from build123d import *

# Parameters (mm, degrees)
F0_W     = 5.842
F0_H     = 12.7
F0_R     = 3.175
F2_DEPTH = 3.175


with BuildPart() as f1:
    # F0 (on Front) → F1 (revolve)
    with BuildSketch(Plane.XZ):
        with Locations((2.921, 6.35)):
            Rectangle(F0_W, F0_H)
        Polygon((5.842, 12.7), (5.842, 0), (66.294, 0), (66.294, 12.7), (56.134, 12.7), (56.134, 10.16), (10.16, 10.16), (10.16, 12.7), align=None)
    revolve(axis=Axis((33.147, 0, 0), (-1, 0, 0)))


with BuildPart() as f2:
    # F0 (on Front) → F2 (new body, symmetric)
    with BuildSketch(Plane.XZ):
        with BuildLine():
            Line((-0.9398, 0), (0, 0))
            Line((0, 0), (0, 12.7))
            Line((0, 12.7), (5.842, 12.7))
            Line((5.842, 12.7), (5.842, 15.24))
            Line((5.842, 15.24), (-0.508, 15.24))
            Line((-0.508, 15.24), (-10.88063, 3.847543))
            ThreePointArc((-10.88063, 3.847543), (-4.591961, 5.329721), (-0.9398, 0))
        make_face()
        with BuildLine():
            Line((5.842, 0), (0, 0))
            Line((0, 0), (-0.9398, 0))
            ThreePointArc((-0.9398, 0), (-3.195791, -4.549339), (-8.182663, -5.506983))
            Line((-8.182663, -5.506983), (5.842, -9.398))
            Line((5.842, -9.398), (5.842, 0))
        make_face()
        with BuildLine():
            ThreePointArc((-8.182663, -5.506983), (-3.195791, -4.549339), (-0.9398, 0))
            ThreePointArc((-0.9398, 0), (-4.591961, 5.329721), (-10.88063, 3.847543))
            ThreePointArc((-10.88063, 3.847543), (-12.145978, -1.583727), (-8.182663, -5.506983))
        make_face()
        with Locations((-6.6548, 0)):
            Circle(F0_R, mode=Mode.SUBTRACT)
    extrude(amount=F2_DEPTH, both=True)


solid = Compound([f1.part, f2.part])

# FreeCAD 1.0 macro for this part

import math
import FreeCAD as App
import Part
import Sketcher

V = App.Vector
Q = App.Units.Quantity

doc = App.newDocument("Part")
body = doc.addObject("PartDesign::Body", "Body")

# Sketch on XZ plane
sketch1 = body.newObject("Sketcher::SketchObject", "Sketch")
sketch1.AttachmentSupport = (doc.getObject("XZ_Plane"), [""])
sketch1.MapMode = "FlatFace"
sketch1.addGeometry([
    Part.LineSegment(V(0, 12.7, 0), V(0, 0, 0)),  # 0
    Part.LineSegment(V(0, 0, 0), V(66.294, 0, 0)),  # 1
    Part.LineSegment(V(66.294, 0, 0), V(66.294, 12.7, 0)),  # 2
    Part.LineSegment(V(66.294, 12.7, 0), V(56.134, 12.7, 0)),  # 3
    Part.LineSegment(V(56.134, 12.7, 0), V(56.134, 10.16, 0)),  # 4
    Part.LineSegment(V(56.134, 10.16, 0), V(10.16, 10.16, 0)),  # 5
    Part.LineSegment(V(10.16, 10.16, 0), V(10.16, 12.7, 0)),  # 6
    Part.LineSegment(V(10.16, 12.7, 0), V(0, 12.7, 0)),  # 7
], False)
sketch1.addConstraint([
    Sketcher.Constraint("Coincident", 0, 2, 1, 1),
    Sketcher.Constraint("Coincident", 1, 2, 2, 1),
    Sketcher.Constraint("Coincident", 2, 2, 3, 1),
    Sketcher.Constraint("Coincident", 3, 2, 4, 1),
    Sketcher.Constraint("Coincident", 4, 2, 5, 1),
    Sketcher.Constraint("Coincident", 5, 2, 6, 1),
    Sketcher.Constraint("Coincident", 6, 2, 7, 1),
    Sketcher.Constraint("Coincident", 7, 2, 0, 1),
    Sketcher.Constraint("Vertical", 0),
    Sketcher.Constraint("Horizontal", 1),
    Sketcher.Constraint("Vertical", 2),
    Sketcher.Constraint("Horizontal", 3),
    Sketcher.Constraint("Vertical", 4),
    Sketcher.Constraint("Horizontal", 5),
    Sketcher.Constraint("Vertical", 6),
    Sketcher.Constraint("Horizontal", 7),
    Sketcher.Constraint("Coincident", 0, 2, -1, 1),
    Sketcher.Constraint("Horizontal", 3, 2, 6, 2),
    Sketcher.Constraint("Equal", 3, 7),
    Sketcher.Constraint("DistanceX", 3, 2, 3, 1, Q("0.4 in")),
    Sketcher.Constraint("DistanceY", 0, 2, 0, 1, Q("0.5 in")),
    Sketcher.Constraint("DistanceY", 4, 2, 4, 1, Q("0.1 in")),
    Sketcher.Constraint("DistanceX", 1, 1, 1, 2, Q("2.61 in")),
])
revolution = body.newObject("PartDesign::Revolution", "Revolution")
revolution.Profile = sketch1
revolution.ReferenceAxis = (sketch1, ["H_Axis"])
revolution.Angle = 360
body2 = doc.addObject("PartDesign::Body", "Body001")

# Sketch on XZ plane
sketch2 = body2.newObject("Sketcher::SketchObject", "Sketch001")
sketch2.AttachmentSupport = (doc.getObject("XZ_Plane001"), [""])
sketch2.MapMode = "FlatFace"
sketch2.addGeometry([
    Part.LineSegment(V(0, 0, 0), V(0, 12.7, 0)),  # 0
    Part.LineSegment(V(0, 12.7, 0), V(5.842, 12.7, 0)),  # 1
    Part.LineSegment(V(5.842, 12.7, 0), V(5.842, 15.24, 0)),  # 2
    Part.LineSegment(V(5.842, 15.24, 0), V(-0.508, 15.24, 0)),  # 3
    Part.LineSegment(V(-0.508, 15.24, 0), V(-10.88063, 3.847543, 0)),  # 4
    Part.ArcOfCircle(Part.Circle(V(-6.6548, 0, 0), V(0, 0, 1), 5.715), math.radians(137.682696), math.radians(254.493803)),  # 5
    Part.LineSegment(V(-8.182663, -5.506983, 0), V(5.842, -9.398, 0)),  # 6
    Part.LineSegment(V(5.842, -9.398, 0), V(5.842, 0, 0)),  # 7
    Part.LineSegment(V(5.842, 0, 0), V(0, 0, 0)),  # 8
    Part.Circle(V(-6.6548, 0, 0), V(0, 0, 1), 3.175),  # 9
], False)
sketch2.addConstraint([
    Sketcher.Constraint("Coincident", 0, 2, 1, 1),
    Sketcher.Constraint("Coincident", 1, 2, 2, 1),
    Sketcher.Constraint("Coincident", 2, 2, 3, 1),
    Sketcher.Constraint("Coincident", 3, 2, 4, 1),
    Sketcher.Constraint("Tangent", 4, 2, 5, 1),
    Sketcher.Constraint("Tangent", 5, 2, 6, 1),
    Sketcher.Constraint("Coincident", 6, 2, 7, 1),
    Sketcher.Constraint("Coincident", 7, 2, 8, 1),
    Sketcher.Constraint("Coincident", 8, 2, 0, 1),
    Sketcher.Constraint("Vertical", 0),
    Sketcher.Constraint("Horizontal", 1),
    Sketcher.Constraint("Vertical", 2),
    Sketcher.Constraint("Horizontal", 3),
    Sketcher.Constraint("Vertical", 7),
    Sketcher.Constraint("Horizontal", 8),
    Sketcher.Constraint("Coincident", 8, 2, -1, 1),
    Sketcher.Constraint("Coincident", 9, 3, 5, 3),
    Sketcher.Constraint("PointOnObject", 5, 3, -1),
    Sketcher.Constraint("Vertical", 2, 2, 6, 2),
    Sketcher.Constraint("Diameter", 9, Q("0.25 in")),
    Sketcher.Constraint("DistanceY", 0, 1, 0, 2, Q("0.5 in")),
    Sketcher.Constraint("DistanceY", 2, 1, 2, 2, Q("0.1 in")),
    Sketcher.Constraint("Radius", 5, Q("0.225 in")),
    Sketcher.Constraint("DistanceX", 1, 1, 1, 2, Q("0.23 in")),
    Sketcher.Constraint("DistanceX", 3, 2, 3, 1, Q("0.25 in")),
    Sketcher.Constraint("DistanceY", 7, 1, 7, 2, Q("0.37 in")),
    Sketcher.Constraint("DistanceX", 5, 3, -1, 1, Q("0.262 in")),
])
pad1 = body2.newObject("PartDesign::Pad", "Pad")
pad1.Profile = sketch2
pad1.Length = Q("0.25 in")
pad1.Midplane = True

doc.recompute()
